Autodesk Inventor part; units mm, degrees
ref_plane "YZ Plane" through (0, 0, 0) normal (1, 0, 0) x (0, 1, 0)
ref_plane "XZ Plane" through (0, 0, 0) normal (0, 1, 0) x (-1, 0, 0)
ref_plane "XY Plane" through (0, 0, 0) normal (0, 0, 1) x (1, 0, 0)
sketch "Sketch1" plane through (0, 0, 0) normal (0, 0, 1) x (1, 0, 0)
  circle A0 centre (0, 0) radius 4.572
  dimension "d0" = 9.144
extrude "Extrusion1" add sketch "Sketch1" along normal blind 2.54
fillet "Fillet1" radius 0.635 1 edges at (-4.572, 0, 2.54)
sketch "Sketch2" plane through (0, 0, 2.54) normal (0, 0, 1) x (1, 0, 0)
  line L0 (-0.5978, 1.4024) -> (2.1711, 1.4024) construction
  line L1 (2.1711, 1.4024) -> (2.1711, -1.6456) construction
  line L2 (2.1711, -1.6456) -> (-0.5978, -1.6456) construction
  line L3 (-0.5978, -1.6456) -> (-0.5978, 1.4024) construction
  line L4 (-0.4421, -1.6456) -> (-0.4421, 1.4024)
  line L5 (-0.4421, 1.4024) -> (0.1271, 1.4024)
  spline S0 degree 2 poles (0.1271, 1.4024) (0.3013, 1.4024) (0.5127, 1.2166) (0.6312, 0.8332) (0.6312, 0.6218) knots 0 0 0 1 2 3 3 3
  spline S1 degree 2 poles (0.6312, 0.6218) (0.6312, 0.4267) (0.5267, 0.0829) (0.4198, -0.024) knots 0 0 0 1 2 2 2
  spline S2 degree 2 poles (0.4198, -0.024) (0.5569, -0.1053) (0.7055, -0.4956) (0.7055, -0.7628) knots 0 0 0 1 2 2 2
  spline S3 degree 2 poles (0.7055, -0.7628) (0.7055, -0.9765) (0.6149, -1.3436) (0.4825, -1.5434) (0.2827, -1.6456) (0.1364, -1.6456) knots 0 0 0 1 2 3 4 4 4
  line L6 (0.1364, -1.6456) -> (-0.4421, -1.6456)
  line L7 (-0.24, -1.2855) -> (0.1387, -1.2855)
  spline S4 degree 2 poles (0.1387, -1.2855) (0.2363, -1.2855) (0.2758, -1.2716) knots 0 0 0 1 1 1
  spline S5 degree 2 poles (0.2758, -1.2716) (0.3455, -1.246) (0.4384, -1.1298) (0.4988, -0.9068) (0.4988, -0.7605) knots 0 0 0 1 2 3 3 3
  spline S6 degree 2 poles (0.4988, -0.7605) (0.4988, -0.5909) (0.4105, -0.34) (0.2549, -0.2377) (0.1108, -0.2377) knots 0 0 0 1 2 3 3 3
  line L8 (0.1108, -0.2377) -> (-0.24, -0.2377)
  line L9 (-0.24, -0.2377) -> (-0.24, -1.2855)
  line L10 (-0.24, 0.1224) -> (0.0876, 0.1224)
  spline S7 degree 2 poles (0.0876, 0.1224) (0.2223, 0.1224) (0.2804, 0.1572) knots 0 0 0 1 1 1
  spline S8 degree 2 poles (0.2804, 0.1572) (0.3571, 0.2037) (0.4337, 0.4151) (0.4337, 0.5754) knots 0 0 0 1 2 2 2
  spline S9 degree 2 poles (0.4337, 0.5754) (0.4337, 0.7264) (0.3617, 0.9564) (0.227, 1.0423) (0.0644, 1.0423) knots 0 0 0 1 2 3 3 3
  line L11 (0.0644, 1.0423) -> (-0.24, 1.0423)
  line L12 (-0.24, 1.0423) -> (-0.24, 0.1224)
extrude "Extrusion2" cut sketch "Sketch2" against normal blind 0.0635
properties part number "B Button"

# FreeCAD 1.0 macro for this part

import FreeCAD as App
import Part
import Sketcher
Q = App.Units.Quantity


def edges_at(feature, points):
    """Names of the edges that pass closest to the given points."""
    edges = feature.Shape.Edges
    near = lambda p: min(range(len(edges)), key=lambda i: edges[i].distToShape(Part.Vertex(*p))[0])
    return sorted({f"Edge{near(p) + 1}" for p in points})

doc = App.newDocument("Part")
params = doc.addObject("Spreadsheet::Sheet", "Params")
for row, (alias, value) in enumerate([
    ("sketch1_diameter", "0.36 in"),
    ("pad1_length", "0.1 in"),
    ("fillet_radius", "0.025 in"),
    ("pocket1_length", "0.0025 in"),
], start=1):
    params.set(f"A{row}", alias)
    params.set(f"B{row}", "=" + value)
    params.setAlias(f"B{row}", alias)

body = doc.addObject("PartDesign::Body", "Body")

# Sketch on XY plane
sketch1 = body.newObject("Sketcher::SketchObject", "Sketch")
sketch1.AttachmentSupport = (doc.getObject("XY_Plane"), [""])
sketch1.MapMode = "FlatFace"
sketch1.addGeometry(Part.Circle(App.Vector(0, 0, 0), App.Vector(0, 0, 1), 4.6), False)
sketch1.addConstraint(Sketcher.Constraint("Coincident", 0, 3, -1, 1))
sketch1.addConstraint(Sketcher.Constraint("Diameter", 0, Q("0.36 in")))
sketch1.setExpression("Constraints[1]", "Params.sketch1_diameter")
pad1 = body.newObject("PartDesign::Pad", "Pad")
pad1.Profile = sketch1
pad1.setExpression("Length", "Params.pad1_length")
doc.recompute()

fillet = body.newObject("PartDesign::Fillet", "Fillet")
fillet.Base = (pad1, edges_at(pad1, [(-4.572, 0, 2.54)]))
fillet.setExpression("Radius", "Params.fillet_radius")

# Sketch on XY plane
sketch2 = body.newObject("Sketcher::SketchObject", "Sketch001")
sketch2.AttachmentSupport = (doc.getObject("XY_Plane"), [""])
sketch2.MapMode = "FlatFace"
sketch2.AttachmentOffset = App.Placement(App.Vector(0, 0, 0.1 * 25.4), App.Rotation())
sketch2.addGeometry(Part.LineSegment(App.Vector(-0.4421, 1.4024, 0), App.Vector(-0.4421, -1.6456, 0)), False)
sketch2.addGeometry(Part.LineSegment(App.Vector(-0.4421, -1.6456, 0), App.Vector(0.1364, -1.6456, 0)), False)
sketch2.addGeometry(Part.BSplineCurve([App.Vector(0.7055, -0.7628, 0), App.Vector(0.7055, -0.9765, 0), App.Vector(0.6149, -1.3436, 0), App.Vector(0.4825, -1.5434, 0), App.Vector(0.2827, -1.6456, 0), App.Vector(0.1364, -1.6456, 0)], [3, 1, 1, 1, 3], [0, 1, 2, 3, 4], False, 2, [1, 1, 1, 1, 1, 1], False), False)
sketch2.addGeometry(Part.BSplineCurve([App.Vector(0.4198, -0.024, 0), App.Vector(0.5569, -0.1053, 0), App.Vector(0.7055, -0.4956, 0), App.Vector(0.7055, -0.7628, 0)], [3, 1, 3], [0, 1, 2], False, 2, [1, 1, 1, 1], False), False)
sketch2.addGeometry(Part.BSplineCurve([App.Vector(0.6312, 0.6218, 0), App.Vector(0.6312, 0.4267, 0), App.Vector(0.5267, 0.0829, 0), App.Vector(0.4198, -0.024, 0)], [3, 1, 3], [0, 1, 2], False, 2, [1, 1, 1, 1], False), False)
sketch2.addGeometry(Part.BSplineCurve([App.Vector(0.1271, 1.4024, 0), App.Vector(0.3013, 1.4024, 0), App.Vector(0.5127, 1.2166, 0), App.Vector(0.6312, 0.8332, 0), App.Vector(0.6312, 0.6218, 0)], [3, 1, 1, 3], [0, 1, 2, 3], False, 2, [1, 1, 1, 1, 1], False), False)
sketch2.addGeometry(Part.LineSegment(App.Vector(0.1271, 1.4024, 0), App.Vector(-0.4421, 1.4024, 0)), False)
sketch2.addGeometry(Part.LineSegment(App.Vector(0.1387, -1.2855, 0), App.Vector(-0.24, -1.2855, 0)), False)
sketch2.addGeometry(Part.LineSegment(App.Vector(-0.24, -1.2855, 0), App.Vector(-0.24, -0.2377, 0)), False)
sketch2.addGeometry(Part.LineSegment(App.Vector(-0.24, -0.2377, 0), App.Vector(0.1108, -0.2377, 0)), False)
sketch2.addGeometry(Part.BSplineCurve([App.Vector(0.4988, -0.7605, 0), App.Vector(0.4988, -0.5909, 0), App.Vector(0.4105, -0.34, 0), App.Vector(0.2549, -0.2377, 0), App.Vector(0.1108, -0.2377, 0)], [3, 1, 1, 3], [0, 1, 2, 3], False, 2, [1, 1, 1, 1, 1], False), False)
sketch2.addGeometry(Part.BSplineCurve([App.Vector(0.2758, -1.2716, 0), App.Vector(0.3455, -1.246, 0), App.Vector(0.4384, -1.1298, 0), App.Vector(0.4988, -0.9068, 0), App.Vector(0.4988, -0.7605, 0)], [3, 1, 1, 3], [0, 1, 2, 3], False, 2, [1, 1, 1, 1, 1], False), False)
sketch2.addGeometry(Part.BSplineCurve([App.Vector(0.1387, -1.2855, 0), App.Vector(0.2363, -1.2855, 0), App.Vector(0.2758, -1.2716, 0)], [3, 3], [0, 1], False, 2, [1, 1, 1], False), False)
sketch2.addGeometry(Part.LineSegment(App.Vector(0.0876, 0.1224, 0), App.Vector(-0.24, 0.1224, 0)), False)
sketch2.addGeometry(Part.LineSegment(App.Vector(-0.24, 0.1224, 0), App.Vector(-0.24, 1.0423, 0)), False)
sketch2.addGeometry(Part.LineSegment(App.Vector(-0.24, 1.0423, 0), App.Vector(0.0644, 1.0423, 0)), False)
sketch2.addGeometry(Part.BSplineCurve([App.Vector(0.4337, 0.5754, 0), App.Vector(0.4337, 0.7264, 0), App.Vector(0.3617, 0.9564, 0), App.Vector(0.227, 1.0423, 0), App.Vector(0.0644, 1.0423, 0)], [3, 1, 1, 3], [0, 1, 2, 3], False, 2, [1, 1, 1, 1, 1], False), False)
sketch2.addGeometry(Part.BSplineCurve([App.Vector(0.2804, 0.1572, 0), App.Vector(0.3571, 0.2037, 0), App.Vector(0.4337, 0.4151, 0), App.Vector(0.4337, 0.5754, 0)], [3, 1, 3], [0, 1, 2], False, 2, [1, 1, 1, 1], False), False)
sketch2.addGeometry(Part.BSplineCurve([App.Vector(0.0876, 0.1224, 0), App.Vector(0.2223, 0.1224, 0), App.Vector(0.2804, 0.1572, 0)], [3, 3], [0, 1], False, 2, [1, 1, 1], False), False)
sketch2.addConstraint(Sketcher.Constraint("Block", 2))
sketch2.addConstraint(Sketcher.Constraint("Block", 3))
sketch2.addConstraint(Sketcher.Constraint("Block", 4))
sketch2.addConstraint(Sketcher.Constraint("Block", 5))
sketch2.addConstraint(Sketcher.Constraint("Block", 10))
sketch2.addConstraint(Sketcher.Constraint("Block", 11))
sketch2.addConstraint(Sketcher.Constraint("Block", 12))
sketch2.addConstraint(Sketcher.Constraint("Block", 16))
sketch2.addConstraint(Sketcher.Constraint("Block", 17))
sketch2.addConstraint(Sketcher.Constraint("Block", 18))
sketch2.addConstraint(Sketcher.Constraint("Coincident", 0, 2, 1, 1))
sketch2.addConstraint(Sketcher.Constraint("Coincident", 1, 2, 2, 2))
sketch2.addConstraint(Sketcher.Constraint("Coincident", 5, 1, 6, 1))
sketch2.addConstraint(Sketcher.Constraint("Coincident", 6, 2, 0, 1))
sketch2.addConstraint(Sketcher.Constraint("Coincident", 7, 2, 8, 1))
sketch2.addConstraint(Sketcher.Constraint("Coincident", 8, 2, 9, 1))
sketch2.addConstraint(Sketcher.Constraint("Coincident", 9, 2, 10, 2))
sketch2.addConstraint(Sketcher.Constraint("Coincident", 12, 1, 7, 1))
sketch2.addConstraint(Sketcher.Constraint("Coincident", 13, 2, 14, 1))
sketch2.addConstraint(Sketcher.Constraint("Coincident", 14, 2, 15, 1))
sketch2.addConstraint(Sketcher.Constraint("Coincident", 15, 2, 16, 2))
sketch2.addConstraint(Sketcher.Constraint("Coincident", 18, 1, 13, 1))
sketch2.addConstraint(Sketcher.Constraint("Vertical", 0))
sketch2.addConstraint(Sketcher.Constraint("Horizontal", 1))
sketch2.addConstraint(Sketcher.Constraint("Horizontal", 6))
sketch2.addConstraint(Sketcher.Constraint("Horizontal", 7))
sketch2.addConstraint(Sketcher.Constraint("Vertical", 8))
sketch2.addConstraint(Sketcher.Constraint("Horizontal", 9))
sketch2.addConstraint(Sketcher.Constraint("Horizontal", 13))
sketch2.addConstraint(Sketcher.Constraint("Vertical", 14))
sketch2.addConstraint(Sketcher.Constraint("Horizontal", 15))
sketch2.addConstraint(Sketcher.Constraint("Vertical", 8, 2, 13, 2))
sketch2.addConstraint(Sketcher.Constraint("DistanceX", 6, 2, 6, 1, Q("0.0224 in")))
sketch2.addConstraint(Sketcher.Constraint("DistanceX", 7, 2, 7, 1, Q("0.0149 in")))
pocket1 = body.newObject("PartDesign::Pocket", "Pocket")
pocket1.Profile = sketch2
pocket1.setExpression("Length", "Params.pocket1_length")

doc.recompute()
